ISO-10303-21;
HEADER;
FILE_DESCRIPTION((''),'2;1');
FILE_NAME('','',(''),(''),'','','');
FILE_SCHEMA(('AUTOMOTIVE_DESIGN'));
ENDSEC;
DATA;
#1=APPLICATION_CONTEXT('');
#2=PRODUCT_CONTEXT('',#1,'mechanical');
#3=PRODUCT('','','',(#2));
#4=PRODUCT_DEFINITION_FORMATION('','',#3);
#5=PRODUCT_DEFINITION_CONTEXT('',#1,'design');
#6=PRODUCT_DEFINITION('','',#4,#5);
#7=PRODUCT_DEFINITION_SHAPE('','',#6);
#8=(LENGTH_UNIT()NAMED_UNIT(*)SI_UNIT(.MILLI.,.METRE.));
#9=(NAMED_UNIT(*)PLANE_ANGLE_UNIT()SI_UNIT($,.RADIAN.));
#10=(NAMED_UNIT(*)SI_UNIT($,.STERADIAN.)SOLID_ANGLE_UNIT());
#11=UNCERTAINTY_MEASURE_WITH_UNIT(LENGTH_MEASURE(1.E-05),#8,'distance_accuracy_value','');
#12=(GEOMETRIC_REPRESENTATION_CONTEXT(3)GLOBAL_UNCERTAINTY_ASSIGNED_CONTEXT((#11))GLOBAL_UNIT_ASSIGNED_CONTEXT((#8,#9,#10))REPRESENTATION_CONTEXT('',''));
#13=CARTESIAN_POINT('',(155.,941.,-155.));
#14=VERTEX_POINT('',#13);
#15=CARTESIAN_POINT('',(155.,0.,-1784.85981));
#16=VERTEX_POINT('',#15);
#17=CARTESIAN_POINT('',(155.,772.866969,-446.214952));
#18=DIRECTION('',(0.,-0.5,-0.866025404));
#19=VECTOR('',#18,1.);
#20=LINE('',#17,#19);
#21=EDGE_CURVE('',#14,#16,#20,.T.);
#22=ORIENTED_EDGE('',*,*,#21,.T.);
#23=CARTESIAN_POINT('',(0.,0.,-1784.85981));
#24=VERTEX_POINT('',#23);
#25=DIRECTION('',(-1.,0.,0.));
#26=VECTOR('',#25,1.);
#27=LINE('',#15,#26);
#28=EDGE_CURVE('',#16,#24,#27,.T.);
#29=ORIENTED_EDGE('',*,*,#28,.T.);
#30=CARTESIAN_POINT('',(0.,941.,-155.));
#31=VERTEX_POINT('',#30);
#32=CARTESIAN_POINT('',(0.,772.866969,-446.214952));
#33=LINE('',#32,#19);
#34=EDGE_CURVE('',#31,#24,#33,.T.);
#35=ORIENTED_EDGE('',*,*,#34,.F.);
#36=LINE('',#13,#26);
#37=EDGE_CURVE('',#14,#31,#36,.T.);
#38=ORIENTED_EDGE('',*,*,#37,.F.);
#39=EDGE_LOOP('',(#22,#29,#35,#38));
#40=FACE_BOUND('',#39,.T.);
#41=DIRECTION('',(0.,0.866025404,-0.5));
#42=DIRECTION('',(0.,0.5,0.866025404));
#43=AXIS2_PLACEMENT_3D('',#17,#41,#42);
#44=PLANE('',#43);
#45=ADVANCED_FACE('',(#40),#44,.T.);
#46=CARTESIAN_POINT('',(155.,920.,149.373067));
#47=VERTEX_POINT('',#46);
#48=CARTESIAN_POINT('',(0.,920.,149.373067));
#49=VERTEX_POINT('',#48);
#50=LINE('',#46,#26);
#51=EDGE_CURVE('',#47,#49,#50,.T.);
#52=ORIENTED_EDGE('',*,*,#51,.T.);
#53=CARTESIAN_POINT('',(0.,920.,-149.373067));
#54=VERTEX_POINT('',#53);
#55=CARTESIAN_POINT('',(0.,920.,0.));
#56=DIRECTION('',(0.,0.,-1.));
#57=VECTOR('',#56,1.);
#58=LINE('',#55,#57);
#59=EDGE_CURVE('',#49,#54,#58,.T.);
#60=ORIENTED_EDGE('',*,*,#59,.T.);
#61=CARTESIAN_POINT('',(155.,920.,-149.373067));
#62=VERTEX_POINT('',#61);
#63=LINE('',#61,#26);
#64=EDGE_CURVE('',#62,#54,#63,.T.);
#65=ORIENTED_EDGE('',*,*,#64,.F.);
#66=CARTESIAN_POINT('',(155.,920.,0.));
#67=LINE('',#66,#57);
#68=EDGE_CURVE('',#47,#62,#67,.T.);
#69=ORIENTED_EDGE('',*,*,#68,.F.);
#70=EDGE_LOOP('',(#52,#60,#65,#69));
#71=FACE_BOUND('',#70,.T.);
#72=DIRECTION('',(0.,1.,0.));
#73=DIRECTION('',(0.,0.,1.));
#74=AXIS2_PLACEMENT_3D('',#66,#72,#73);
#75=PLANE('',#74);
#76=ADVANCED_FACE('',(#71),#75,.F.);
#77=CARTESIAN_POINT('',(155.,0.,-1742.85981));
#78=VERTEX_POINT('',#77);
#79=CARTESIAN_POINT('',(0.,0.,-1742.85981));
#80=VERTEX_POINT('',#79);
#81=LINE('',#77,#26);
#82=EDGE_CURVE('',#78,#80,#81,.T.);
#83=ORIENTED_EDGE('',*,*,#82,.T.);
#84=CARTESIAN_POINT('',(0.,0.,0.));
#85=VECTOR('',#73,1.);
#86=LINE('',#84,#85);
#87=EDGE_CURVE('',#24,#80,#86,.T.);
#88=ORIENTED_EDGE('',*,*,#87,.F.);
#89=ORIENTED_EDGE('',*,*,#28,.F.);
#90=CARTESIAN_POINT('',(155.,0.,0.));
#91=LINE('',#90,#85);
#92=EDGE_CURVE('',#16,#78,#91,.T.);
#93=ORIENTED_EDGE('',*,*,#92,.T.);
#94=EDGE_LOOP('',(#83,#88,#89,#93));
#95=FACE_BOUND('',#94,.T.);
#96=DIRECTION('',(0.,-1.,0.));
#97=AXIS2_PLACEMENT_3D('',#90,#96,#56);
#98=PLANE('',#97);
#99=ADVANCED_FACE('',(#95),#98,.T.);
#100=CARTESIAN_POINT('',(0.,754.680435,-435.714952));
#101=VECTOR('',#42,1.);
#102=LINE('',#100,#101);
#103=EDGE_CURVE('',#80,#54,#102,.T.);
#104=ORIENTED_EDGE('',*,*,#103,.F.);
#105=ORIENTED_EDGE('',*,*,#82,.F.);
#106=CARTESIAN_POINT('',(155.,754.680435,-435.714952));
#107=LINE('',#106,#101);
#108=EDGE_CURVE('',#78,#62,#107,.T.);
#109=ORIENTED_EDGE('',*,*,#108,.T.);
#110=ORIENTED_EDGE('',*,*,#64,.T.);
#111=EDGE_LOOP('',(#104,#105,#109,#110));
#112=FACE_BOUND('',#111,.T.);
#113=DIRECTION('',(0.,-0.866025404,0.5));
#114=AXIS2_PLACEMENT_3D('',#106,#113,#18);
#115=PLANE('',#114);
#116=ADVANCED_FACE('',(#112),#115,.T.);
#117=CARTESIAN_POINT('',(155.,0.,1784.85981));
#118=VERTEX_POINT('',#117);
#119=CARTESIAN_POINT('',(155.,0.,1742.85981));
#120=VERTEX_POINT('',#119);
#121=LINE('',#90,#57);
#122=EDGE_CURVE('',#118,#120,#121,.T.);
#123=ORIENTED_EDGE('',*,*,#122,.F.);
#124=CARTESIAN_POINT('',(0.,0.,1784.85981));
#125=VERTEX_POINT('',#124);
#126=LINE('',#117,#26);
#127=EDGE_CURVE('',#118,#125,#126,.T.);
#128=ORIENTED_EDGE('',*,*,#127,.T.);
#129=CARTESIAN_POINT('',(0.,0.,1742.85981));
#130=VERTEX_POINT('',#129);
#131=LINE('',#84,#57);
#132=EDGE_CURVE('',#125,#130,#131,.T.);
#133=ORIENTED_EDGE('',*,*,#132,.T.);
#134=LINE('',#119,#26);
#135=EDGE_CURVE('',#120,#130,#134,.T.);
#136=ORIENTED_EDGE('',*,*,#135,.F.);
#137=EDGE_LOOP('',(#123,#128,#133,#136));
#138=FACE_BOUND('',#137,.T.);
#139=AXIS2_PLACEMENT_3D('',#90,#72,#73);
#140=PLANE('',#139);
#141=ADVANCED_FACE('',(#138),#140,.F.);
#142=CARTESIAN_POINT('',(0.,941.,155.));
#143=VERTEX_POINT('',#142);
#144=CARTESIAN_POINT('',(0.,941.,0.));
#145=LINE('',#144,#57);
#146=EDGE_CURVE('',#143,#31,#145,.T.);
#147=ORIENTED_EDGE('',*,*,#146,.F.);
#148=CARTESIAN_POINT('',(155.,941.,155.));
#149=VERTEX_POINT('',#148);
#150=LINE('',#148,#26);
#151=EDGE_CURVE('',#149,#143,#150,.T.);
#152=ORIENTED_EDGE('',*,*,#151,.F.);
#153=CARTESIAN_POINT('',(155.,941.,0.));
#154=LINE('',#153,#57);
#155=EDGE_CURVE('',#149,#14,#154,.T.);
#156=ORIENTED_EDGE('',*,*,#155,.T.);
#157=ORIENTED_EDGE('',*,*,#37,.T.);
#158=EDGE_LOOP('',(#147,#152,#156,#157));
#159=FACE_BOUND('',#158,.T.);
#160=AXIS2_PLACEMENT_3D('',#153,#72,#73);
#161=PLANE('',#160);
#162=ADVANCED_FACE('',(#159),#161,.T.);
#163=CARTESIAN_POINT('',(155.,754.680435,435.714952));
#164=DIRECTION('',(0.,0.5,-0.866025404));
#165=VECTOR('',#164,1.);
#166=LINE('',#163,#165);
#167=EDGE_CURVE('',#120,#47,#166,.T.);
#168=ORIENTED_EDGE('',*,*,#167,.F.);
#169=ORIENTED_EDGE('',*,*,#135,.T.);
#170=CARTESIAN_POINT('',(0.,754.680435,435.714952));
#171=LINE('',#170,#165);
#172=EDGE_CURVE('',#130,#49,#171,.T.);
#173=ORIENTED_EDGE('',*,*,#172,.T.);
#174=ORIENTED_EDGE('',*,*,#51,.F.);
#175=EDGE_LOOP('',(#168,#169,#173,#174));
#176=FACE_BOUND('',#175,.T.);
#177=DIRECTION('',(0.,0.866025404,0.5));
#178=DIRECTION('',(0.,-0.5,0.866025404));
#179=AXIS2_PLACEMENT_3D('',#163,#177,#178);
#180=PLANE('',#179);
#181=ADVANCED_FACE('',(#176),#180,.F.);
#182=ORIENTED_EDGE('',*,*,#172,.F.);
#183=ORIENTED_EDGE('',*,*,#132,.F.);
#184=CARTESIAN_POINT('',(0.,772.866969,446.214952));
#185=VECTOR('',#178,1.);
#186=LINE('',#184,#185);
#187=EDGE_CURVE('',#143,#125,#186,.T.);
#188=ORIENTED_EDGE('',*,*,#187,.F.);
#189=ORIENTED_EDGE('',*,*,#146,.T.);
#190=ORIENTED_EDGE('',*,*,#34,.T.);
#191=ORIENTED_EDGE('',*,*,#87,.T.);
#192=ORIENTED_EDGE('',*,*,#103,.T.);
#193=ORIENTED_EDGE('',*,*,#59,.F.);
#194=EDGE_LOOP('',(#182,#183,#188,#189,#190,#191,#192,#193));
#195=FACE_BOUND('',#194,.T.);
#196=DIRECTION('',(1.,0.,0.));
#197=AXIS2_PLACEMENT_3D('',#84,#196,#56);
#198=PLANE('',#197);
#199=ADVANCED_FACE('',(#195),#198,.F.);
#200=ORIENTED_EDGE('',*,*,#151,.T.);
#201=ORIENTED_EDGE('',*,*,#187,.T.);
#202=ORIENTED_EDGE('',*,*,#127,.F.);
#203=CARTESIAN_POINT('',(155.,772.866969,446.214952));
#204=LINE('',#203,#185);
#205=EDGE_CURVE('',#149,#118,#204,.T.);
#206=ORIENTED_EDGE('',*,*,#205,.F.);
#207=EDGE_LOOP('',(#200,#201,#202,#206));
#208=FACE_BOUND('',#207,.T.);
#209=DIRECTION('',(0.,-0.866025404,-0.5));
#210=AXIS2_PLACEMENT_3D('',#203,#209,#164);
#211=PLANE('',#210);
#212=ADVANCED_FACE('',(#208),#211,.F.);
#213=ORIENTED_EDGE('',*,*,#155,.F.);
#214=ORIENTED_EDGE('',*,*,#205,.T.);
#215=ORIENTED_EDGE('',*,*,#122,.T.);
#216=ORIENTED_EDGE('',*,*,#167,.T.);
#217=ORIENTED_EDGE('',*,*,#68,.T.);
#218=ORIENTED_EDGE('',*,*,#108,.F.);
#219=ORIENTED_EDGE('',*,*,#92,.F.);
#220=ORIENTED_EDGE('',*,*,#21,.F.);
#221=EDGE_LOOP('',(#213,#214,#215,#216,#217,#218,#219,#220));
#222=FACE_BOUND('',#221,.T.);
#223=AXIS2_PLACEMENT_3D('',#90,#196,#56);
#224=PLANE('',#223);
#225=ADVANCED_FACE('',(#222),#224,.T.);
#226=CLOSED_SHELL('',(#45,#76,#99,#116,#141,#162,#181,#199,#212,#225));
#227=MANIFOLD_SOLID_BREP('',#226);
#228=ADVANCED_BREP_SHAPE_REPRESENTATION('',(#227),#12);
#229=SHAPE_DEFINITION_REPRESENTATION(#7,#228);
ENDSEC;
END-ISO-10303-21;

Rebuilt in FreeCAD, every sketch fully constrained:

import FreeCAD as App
import Part
import Sketcher
from FreeCAD import Vector
Q = App.Units.Quantity

doc = App.newDocument("Part")
body = doc.addObject("PartDesign::Body", "Body")

# Sketch on YZ plane
sketch1 = doc.addObject("Sketcher::SketchObject", "Sketch")
body.addObject(sketch1)
sketch1.AttachmentSupport = (doc.YZ_Plane, [""])
sketch1.MapMode = "FlatFace"
sketch1.addGeometry(Part.LineSegment(Vector(941, -155, 0), Vector(941, 155, 0)), False)
sketch1.addGeometry(Part.LineSegment(Vector(941, 155, 0), Vector(0, 1785, 0)), False)
sketch1.addGeometry(Part.LineSegment(Vector(0, 1785, 0), Vector(0, 1743, 0)), False)
sketch1.addGeometry(Part.LineSegment(Vector(0, 1743, 0), Vector(920, 149, 0)), False)
sketch1.addGeometry(Part.LineSegment(Vector(920, 149, 0), Vector(920, -149, 0)), False)
sketch1.addGeometry(Part.LineSegment(Vector(920, -149, 0), Vector(0, -1743, 0)), False)
sketch1.addGeometry(Part.LineSegment(Vector(0, -1743, 0), Vector(0, -1785, 0)), False)
sketch1.addGeometry(Part.LineSegment(Vector(0, -1785, 0), Vector(941, -155, 0)), False)
sketch1.addConstraint(Sketcher.Constraint("Coincident", 0, 2, 1, 1))
sketch1.addConstraint(Sketcher.Constraint("Coincident", 1, 2, 2, 1))
sketch1.addConstraint(Sketcher.Constraint("Coincident", 2, 2, 3, 1))
sketch1.addConstraint(Sketcher.Constraint("Coincident", 3, 2, 4, 1))
sketch1.addConstraint(Sketcher.Constraint("Coincident", 4, 2, 5, 1))
sketch1.addConstraint(Sketcher.Constraint("Coincident", 5, 2, 6, 1))
sketch1.addConstraint(Sketcher.Constraint("Coincident", 6, 2, 7, 1))
sketch1.addConstraint(Sketcher.Constraint("Coincident", 7, 2, 0, 1))
sketch1.addConstraint(Sketcher.Constraint("Vertical", 0))
sketch1.addConstraint(Sketcher.Constraint("Vertical", 2))
sketch1.addConstraint(Sketcher.Constraint("Vertical", 4))
sketch1.addConstraint(Sketcher.Constraint("Vertical", 6))
sketch1.addConstraint(Sketcher.Constraint("Symmetric", 2, 2, 5, 2, -1, 1))
sketch1.addConstraint(Sketcher.Constraint("Symmetric", 1, 2, 6, 2, -1))
sketch1.addConstraint(Sketcher.Constraint("Parallel", 1, 3))
sketch1.addConstraint(Sketcher.Constraint("Parallel", 5, 7))
sketch1.addConstraint(Sketcher.Constraint("Equal", 3, 5))
sketch1.addConstraint(Sketcher.Constraint("DistanceY", 0, 1, 0, 2, Q("310 mm")))
sketch1.addConstraint(Sketcher.Constraint("DistanceY", 2, 2, 2, 1, Q("42 mm")))
sketch1.addConstraint(Sketcher.Constraint("Angle", 1, Q("120 deg")))
sketch1.addConstraint(Sketcher.Constraint("Distance", 1, Q("1882 mm")))
sketch1.addConstraint(Sketcher.Constraint("Distance", 3, Q("1840 mm")))
pad1 = doc.addObject("PartDesign::Pad", "Pad")
body.addObject(pad1)
pad1.Profile = sketch1
pad1.Length = 155

doc.recompute()
